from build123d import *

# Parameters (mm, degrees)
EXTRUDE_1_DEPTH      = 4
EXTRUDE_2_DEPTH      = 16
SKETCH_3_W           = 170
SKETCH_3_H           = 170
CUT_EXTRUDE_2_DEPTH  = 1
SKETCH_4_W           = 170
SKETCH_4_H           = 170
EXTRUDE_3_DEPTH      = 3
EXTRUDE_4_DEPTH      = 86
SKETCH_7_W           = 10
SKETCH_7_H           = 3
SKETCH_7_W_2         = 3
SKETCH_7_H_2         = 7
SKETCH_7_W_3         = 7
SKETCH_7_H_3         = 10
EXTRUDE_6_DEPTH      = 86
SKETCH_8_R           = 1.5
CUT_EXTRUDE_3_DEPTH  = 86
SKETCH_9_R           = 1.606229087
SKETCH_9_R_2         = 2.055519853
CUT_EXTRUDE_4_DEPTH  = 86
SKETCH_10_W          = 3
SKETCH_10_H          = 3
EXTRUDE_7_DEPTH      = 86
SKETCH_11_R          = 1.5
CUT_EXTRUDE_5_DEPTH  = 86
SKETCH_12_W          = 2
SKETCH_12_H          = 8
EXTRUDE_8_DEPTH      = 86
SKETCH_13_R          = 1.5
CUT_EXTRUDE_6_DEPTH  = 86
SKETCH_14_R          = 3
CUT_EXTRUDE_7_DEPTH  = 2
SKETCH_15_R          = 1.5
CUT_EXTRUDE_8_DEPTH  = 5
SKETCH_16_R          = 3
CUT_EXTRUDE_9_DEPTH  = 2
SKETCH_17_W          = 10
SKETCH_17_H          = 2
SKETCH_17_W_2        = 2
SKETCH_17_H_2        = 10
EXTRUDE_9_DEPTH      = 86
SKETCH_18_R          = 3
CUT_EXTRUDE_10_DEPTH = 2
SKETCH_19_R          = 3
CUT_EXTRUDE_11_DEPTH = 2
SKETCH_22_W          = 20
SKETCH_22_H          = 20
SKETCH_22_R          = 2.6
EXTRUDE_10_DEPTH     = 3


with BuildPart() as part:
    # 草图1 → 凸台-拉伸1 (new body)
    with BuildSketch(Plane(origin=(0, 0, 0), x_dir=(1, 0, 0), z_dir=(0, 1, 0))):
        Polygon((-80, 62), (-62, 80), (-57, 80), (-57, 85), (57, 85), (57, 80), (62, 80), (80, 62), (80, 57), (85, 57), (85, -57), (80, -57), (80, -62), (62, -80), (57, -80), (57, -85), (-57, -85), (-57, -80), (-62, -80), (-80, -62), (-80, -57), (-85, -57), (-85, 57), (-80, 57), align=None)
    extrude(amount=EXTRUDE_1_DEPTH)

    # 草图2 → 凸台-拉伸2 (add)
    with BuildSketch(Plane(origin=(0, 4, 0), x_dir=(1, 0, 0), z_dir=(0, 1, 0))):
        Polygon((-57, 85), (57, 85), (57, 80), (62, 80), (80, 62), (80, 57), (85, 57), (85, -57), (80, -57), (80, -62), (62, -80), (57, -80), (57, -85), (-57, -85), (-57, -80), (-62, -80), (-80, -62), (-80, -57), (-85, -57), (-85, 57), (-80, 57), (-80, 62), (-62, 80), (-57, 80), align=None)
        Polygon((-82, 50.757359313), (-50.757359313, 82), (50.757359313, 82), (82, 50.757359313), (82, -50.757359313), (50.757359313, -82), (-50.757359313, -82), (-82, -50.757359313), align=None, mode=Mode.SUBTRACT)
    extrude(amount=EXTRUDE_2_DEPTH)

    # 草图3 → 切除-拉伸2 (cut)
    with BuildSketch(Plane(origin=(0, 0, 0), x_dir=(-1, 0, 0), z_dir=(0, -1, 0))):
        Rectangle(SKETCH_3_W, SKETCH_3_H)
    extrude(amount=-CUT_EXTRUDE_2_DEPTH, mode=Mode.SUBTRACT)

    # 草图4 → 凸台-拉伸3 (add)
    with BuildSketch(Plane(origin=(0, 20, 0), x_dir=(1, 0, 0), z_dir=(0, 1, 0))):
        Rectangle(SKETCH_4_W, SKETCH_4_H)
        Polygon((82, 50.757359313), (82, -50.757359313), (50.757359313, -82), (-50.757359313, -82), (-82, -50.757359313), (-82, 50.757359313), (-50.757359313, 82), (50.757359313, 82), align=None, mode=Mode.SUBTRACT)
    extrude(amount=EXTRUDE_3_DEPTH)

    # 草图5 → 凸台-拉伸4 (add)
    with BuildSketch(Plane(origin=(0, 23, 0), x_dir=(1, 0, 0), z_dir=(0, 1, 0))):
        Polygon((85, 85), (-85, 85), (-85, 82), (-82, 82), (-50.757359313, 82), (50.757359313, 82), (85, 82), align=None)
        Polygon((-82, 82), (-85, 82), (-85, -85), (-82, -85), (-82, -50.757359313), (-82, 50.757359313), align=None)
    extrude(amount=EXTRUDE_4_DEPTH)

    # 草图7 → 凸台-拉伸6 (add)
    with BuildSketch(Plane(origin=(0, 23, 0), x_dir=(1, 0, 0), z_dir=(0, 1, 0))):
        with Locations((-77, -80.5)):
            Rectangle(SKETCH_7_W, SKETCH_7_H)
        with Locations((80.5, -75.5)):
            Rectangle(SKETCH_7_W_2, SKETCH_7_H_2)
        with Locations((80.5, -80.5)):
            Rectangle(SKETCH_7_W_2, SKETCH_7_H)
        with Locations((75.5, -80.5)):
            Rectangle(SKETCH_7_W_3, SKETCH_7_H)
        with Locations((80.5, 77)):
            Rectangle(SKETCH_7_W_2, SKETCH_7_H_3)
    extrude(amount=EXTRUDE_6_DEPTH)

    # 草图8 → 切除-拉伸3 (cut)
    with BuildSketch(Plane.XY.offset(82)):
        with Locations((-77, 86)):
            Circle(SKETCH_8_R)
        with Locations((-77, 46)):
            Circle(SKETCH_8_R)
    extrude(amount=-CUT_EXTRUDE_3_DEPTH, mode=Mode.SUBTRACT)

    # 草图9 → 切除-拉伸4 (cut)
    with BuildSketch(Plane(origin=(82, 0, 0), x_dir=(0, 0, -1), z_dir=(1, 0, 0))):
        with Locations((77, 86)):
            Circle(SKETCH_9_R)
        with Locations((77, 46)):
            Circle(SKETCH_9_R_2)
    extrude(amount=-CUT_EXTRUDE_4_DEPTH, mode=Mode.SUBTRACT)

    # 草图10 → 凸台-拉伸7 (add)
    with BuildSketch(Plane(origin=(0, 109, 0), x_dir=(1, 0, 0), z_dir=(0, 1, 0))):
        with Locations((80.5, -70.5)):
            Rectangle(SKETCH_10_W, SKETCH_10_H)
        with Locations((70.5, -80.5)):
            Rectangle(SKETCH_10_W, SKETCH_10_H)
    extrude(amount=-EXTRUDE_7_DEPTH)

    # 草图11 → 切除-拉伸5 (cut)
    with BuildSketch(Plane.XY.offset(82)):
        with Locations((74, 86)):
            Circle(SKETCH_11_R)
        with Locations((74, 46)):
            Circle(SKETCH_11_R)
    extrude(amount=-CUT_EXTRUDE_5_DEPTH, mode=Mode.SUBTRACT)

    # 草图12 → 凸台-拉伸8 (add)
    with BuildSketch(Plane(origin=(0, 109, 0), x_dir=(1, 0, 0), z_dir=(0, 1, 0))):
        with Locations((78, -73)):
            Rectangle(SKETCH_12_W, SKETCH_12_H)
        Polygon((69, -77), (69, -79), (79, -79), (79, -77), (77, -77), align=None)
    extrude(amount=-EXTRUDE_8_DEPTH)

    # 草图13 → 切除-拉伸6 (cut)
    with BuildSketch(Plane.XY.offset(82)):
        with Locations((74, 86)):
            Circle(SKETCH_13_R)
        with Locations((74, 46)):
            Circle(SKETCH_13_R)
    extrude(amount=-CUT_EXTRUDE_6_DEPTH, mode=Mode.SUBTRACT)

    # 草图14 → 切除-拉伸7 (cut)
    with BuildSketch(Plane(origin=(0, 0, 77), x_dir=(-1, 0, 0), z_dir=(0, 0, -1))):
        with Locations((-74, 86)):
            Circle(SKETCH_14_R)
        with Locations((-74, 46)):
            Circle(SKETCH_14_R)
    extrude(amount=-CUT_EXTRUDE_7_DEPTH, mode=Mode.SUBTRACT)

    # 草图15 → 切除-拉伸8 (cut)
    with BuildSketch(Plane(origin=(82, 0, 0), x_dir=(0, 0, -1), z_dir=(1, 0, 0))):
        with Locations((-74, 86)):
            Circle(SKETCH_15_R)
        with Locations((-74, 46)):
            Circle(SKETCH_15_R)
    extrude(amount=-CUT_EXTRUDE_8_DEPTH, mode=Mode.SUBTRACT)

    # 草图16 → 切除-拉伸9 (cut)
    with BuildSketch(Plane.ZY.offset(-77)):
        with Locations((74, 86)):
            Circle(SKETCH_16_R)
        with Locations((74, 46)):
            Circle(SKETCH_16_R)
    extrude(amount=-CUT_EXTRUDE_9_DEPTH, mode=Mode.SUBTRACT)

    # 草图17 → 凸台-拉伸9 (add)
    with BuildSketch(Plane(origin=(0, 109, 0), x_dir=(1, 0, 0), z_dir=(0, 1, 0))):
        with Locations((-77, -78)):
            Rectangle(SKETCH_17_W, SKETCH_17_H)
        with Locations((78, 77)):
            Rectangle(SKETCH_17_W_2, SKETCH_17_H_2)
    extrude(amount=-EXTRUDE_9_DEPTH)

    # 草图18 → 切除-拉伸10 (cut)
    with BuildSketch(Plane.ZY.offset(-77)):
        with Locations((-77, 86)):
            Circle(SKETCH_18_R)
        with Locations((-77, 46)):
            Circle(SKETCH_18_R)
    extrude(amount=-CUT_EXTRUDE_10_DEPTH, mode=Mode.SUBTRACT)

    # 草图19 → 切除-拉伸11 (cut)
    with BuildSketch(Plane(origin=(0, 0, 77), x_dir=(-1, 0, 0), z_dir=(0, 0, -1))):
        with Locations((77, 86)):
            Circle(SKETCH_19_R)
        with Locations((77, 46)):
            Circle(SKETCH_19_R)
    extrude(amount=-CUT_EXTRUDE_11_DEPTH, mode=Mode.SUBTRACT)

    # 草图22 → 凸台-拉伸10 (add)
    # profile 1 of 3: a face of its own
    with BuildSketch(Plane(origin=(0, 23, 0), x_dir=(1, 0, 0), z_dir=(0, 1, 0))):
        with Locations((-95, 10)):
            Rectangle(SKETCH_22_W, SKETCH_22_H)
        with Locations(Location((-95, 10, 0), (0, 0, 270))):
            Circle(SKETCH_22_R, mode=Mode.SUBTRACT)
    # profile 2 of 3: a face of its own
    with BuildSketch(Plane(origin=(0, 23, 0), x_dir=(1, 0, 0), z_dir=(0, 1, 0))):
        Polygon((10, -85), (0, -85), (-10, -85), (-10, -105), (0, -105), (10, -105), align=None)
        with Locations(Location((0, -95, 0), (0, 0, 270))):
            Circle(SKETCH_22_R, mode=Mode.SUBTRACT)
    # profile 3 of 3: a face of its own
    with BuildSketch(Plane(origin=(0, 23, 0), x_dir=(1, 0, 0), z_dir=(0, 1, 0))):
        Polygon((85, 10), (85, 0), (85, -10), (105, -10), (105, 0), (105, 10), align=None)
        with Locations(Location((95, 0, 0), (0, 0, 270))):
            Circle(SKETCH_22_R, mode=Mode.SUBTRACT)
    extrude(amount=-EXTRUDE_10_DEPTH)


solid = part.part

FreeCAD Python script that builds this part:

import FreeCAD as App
import Part
import Sketcher
Q = App.Units.Quantity

doc = App.newDocument("Part")
body = doc.addObject("PartDesign::Body", "Body")

# Sketch on XZ plane
sketch1 = body.newObject("Sketcher::SketchObject", "Sketch")
sketch1.AttachmentSupport = (doc.getObject("XZ_Plane"), [""])
sketch1.MapMode = "FlatFace"
sketch1.addGeometry([
    Part.LineSegment(App.Vector(-62, -80, 0), App.Vector(-80, -62, 0)),  # 0
    Part.LineSegment(App.Vector(-80, -62, 0), App.Vector(-80, -57, 0)),  # 1
    Part.LineSegment(App.Vector(-80, -57, 0), App.Vector(-85, -57, 0)),  # 2
    Part.LineSegment(App.Vector(-85, -57, 0), App.Vector(-85, 57, 0)),  # 3
    Part.LineSegment(App.Vector(-85, 57, 0), App.Vector(-80, 57, 0)),  # 4
    Part.LineSegment(App.Vector(-80, 57, 0), App.Vector(-80, 62, 0)),  # 5
    Part.LineSegment(App.Vector(-80, 62, 0), App.Vector(-62, 80, 0)),  # 6
    Part.LineSegment(App.Vector(-62, 80, 0), App.Vector(-57, 80, 0)),  # 7
    Part.LineSegment(App.Vector(-57, 80, 0), App.Vector(-57, 85, 0)),  # 8
    Part.LineSegment(App.Vector(-57, 85, 0), App.Vector(57, 85, 0)),  # 9
    Part.LineSegment(App.Vector(57, 85, 0), App.Vector(57, 80, 0)),  # 10
    Part.LineSegment(App.Vector(57, 80, 0), App.Vector(62, 80, 0)),  # 11
    Part.LineSegment(App.Vector(62, 80, 0), App.Vector(80, 62, 0)),  # 12
    Part.LineSegment(App.Vector(80, 62, 0), App.Vector(80, 57, 0)),  # 13
    Part.LineSegment(App.Vector(80, 57, 0), App.Vector(85, 57, 0)),  # 14
    Part.LineSegment(App.Vector(85, 57, 0), App.Vector(85, -57, 0)),  # 15
    Part.LineSegment(App.Vector(85, -57, 0), App.Vector(80, -57, 0)),  # 16
    Part.LineSegment(App.Vector(80, -57, 0), App.Vector(80, -62, 0)),  # 17
    Part.LineSegment(App.Vector(80, -62, 0), App.Vector(62, -80, 0)),  # 18
    Part.LineSegment(App.Vector(62, -80, 0), App.Vector(57, -80, 0)),  # 19
    Part.LineSegment(App.Vector(57, -80, 0), App.Vector(57, -85, 0)),  # 20
    Part.LineSegment(App.Vector(57, -85, 0), App.Vector(-57, -85, 0)),  # 21
    Part.LineSegment(App.Vector(-57, -85, 0), App.Vector(-57, -80, 0)),  # 22
    Part.LineSegment(App.Vector(-57, -80, 0), App.Vector(-62, -80, 0)),  # 23
], False)
sketch1.addConstraint([
    Sketcher.Constraint("Coincident", 0, 2, 1, 1),
    Sketcher.Constraint("Coincident", 1, 2, 2, 1),
    Sketcher.Constraint("Coincident", 2, 2, 3, 1),
    Sketcher.Constraint("Coincident", 3, 2, 4, 1),
    Sketcher.Constraint("Coincident", 4, 2, 5, 1),
    Sketcher.Constraint("Coincident", 5, 2, 6, 1),
    Sketcher.Constraint("Coincident", 6, 2, 7, 1),
    Sketcher.Constraint("Coincident", 7, 2, 8, 1),
    Sketcher.Constraint("Coincident", 8, 2, 9, 1),
    Sketcher.Constraint("Coincident", 9, 2, 10, 1),
    Sketcher.Constraint("Coincident", 10, 2, 11, 1),
    Sketcher.Constraint("Coincident", 11, 2, 12, 1),
    Sketcher.Constraint("Coincident", 12, 2, 13, 1),
    Sketcher.Constraint("Coincident", 13, 2, 14, 1),
    Sketcher.Constraint("Coincident", 14, 2, 15, 1),
    Sketcher.Constraint("Coincident", 15, 2, 16, 1),
    Sketcher.Constraint("Coincident", 16, 2, 17, 1),
    Sketcher.Constraint("Coincident", 17, 2, 18, 1),
    Sketcher.Constraint("Coincident", 18, 2, 19, 1),
    Sketcher.Constraint("Coincident", 19, 2, 20, 1),
    Sketcher.Constraint("Coincident", 20, 2, 21, 1),
    Sketcher.Constraint("Coincident", 21, 2, 22, 1),
    Sketcher.Constraint("Coincident", 22, 2, 23, 1),
    Sketcher.Constraint("Coincident", 23, 2, 0, 1),
    Sketcher.Constraint("Vertical", 1),
    Sketcher.Constraint("Horizontal", 2),
    Sketcher.Constraint("Vertical", 3),
    Sketcher.Constraint("Horizontal", 4),
    Sketcher.Constraint("Vertical", 5),
    Sketcher.Constraint("Horizontal", 7),
    Sketcher.Constraint("Vertical", 8),
    Sketcher.Constraint("Horizontal", 9),
    Sketcher.Constraint("Vertical", 10),
    Sketcher.Constraint("Horizontal", 11),
    Sketcher.Constraint("Vertical", 13),
    Sketcher.Constraint("Horizontal", 14),
    Sketcher.Constraint("Vertical", 15),
    Sketcher.Constraint("Horizontal", 16),
    Sketcher.Constraint("Vertical", 17),
    Sketcher.Constraint("Horizontal", 19),
    Sketcher.Constraint("Vertical", 20),
    Sketcher.Constraint("Horizontal", 21),
    Sketcher.Constraint("Vertical", 22),
    Sketcher.Constraint("Horizontal", 23),
    Sketcher.Constraint("Symmetric", 0, 2, 12, 2, -1, 1),
    Sketcher.Constraint("Symmetric", 2, 2, 14, 2, -1, 1),
    Sketcher.Constraint("Symmetric", 4, 2, 16, 2, -1, 1),
    Sketcher.Constraint("Symmetric", 6, 2, 18, 2, -1, 1),
    Sketcher.Constraint("Symmetric", 8, 2, 20, 2, -1, 1),
    Sketcher.Constraint("Symmetric", 10, 2, 22, 2, -1, 1),
    Sketcher.Constraint("Symmetric", 7, 2, 10, 2, -2),
    Sketcher.Constraint("Symmetric", 5, 2, 12, 2, -2),
    Sketcher.Constraint("Perpendicular", 0, 6),
    Sketcher.Constraint("Perpendicular", 6, 12),
    Sketcher.Constraint("Perpendicular", 12, 18),
    Sketcher.Constraint("Horizontal", 4, 2, 13, 2),
    Sketcher.Constraint("Vertical", 11, 2, 18, 2),
    Sketcher.Constraint("Equal", 4, 7),
    Sketcher.Constraint("Equal", 23, 1),
    Sketcher.Constraint("Equal", 21, 3),
    Sketcher.Constraint("Equal", 5, 8),
    Sketcher.Constraint("DistanceX", 2, 2, 2, 1, Q("5 mm")),
    Sketcher.Constraint("DistanceX", 9, 1, 9, 2, Q("114 mm")),
    Sketcher.Constraint("DistanceX", 0, 2, -1, 1, Q("80 mm")),
])
pad1 = body.newObject("PartDesign::Pad", "Pad")
pad1.Profile = sketch1
pad1.Length = 4
pad1.Reversed = True

# Sketch on XZ plane
sketch2 = body.newObject("Sketcher::SketchObject", "Sketch001")
sketch2.AttachmentSupport = (doc.getObject("XZ_Plane"), [""])
sketch2.MapMode = "FlatFace"
sketch2.AttachmentOffset = App.Placement(App.Vector(0, 0, -4), App.Rotation())
sketch2.addGeometry([
    Part.LineSegment(App.Vector(57, -85, 0), App.Vector(-57, -85, 0)),  # 0
    Part.LineSegment(App.Vector(-57, -85, 0), App.Vector(-57, -80, 0)),  # 1
    Part.LineSegment(App.Vector(-57, -80, 0), App.Vector(-62, -80, 0)),  # 2
    Part.LineSegment(App.Vector(-62, -80, 0), App.Vector(-80, -62, 0)),  # 3
    Part.LineSegment(App.Vector(-80, -62, 0), App.Vector(-80, -57, 0)),  # 4
    Part.LineSegment(App.Vector(-80, -57, 0), App.Vector(-85, -57, 0)),  # 5
    Part.LineSegment(App.Vector(-85, -57, 0), App.Vector(-85, 57, 0)),  # 6
    Part.LineSegment(App.Vector(-85, 57, 0), App.Vector(-80, 57, 0)),  # 7
    Part.LineSegment(App.Vector(-80, 57, 0), App.Vector(-80, 62, 0)),  # 8
    Part.LineSegment(App.Vector(-80, 62, 0), App.Vector(-62, 80, 0)),  # 9
    Part.LineSegment(App.Vector(-62, 80, 0), App.Vector(-57, 80, 0)),  # 10
    Part.LineSegment(App.Vector(-57, 80, 0), App.Vector(-57, 85, 0)),  # 11
    Part.LineSegment(App.Vector(-57, 85, 0), App.Vector(57, 85, 0)),  # 12
    Part.LineSegment(App.Vector(57, 85, 0), App.Vector(57, 80, 0)),  # 13
    Part.LineSegment(App.Vector(57, 80, 0), App.Vector(62, 80, 0)),  # 14
    Part.LineSegment(App.Vector(62, 80, 0), App.Vector(80, 62, 0)),  # 15
    Part.LineSegment(App.Vector(80, 62, 0), App.Vector(80, 57, 0)),  # 16
    Part.LineSegment(App.Vector(80, 57, 0), App.Vector(85, 57, 0)),  # 17
    Part.LineSegment(App.Vector(85, 57, 0), App.Vector(85, -57, 0)),  # 18
    Part.LineSegment(App.Vector(85, -57, 0), App.Vector(80, -57, 0)),  # 19
    Part.LineSegment(App.Vector(80, -57, 0), App.Vector(80, -62, 0)),  # 20
    Part.LineSegment(App.Vector(80, -62, 0), App.Vector(62, -80, 0)),  # 21
    Part.LineSegment(App.Vector(62, -80, 0), App.Vector(57, -80, 0)),  # 22
    Part.LineSegment(App.Vector(57, -80, 0), App.Vector(57, -85, 0)),  # 23
    Part.LineSegment(App.Vector(-82, -50.757359, 0), App.Vector(-50.757359, -82, 0)),  # 24
    Part.LineSegment(App.Vector(-50.757359, -82, 0), App.Vector(50.757359, -82, 0)),  # 25
    Part.LineSegment(App.Vector(50.757359, -82, 0), App.Vector(82, -50.757359, 0)),  # 26
    Part.LineSegment(App.Vector(82, -50.757359, 0), App.Vector(82, 50.757359, 0)),  # 27
    Part.LineSegment(App.Vector(82, 50.757359, 0), App.Vector(50.757359, 82, 0)),  # 28
    Part.LineSegment(App.Vector(50.757359, 82, 0), App.Vector(-50.757359, 82, 0)),  # 29
    Part.LineSegment(App.Vector(-50.757359, 82, 0), App.Vector(-82, 50.757359, 0)),  # 30
    Part.LineSegment(App.Vector(-82, 50.757359, 0), App.Vector(-82, -50.757359, 0)),  # 31
], False)
sketch2.addConstraint([
    Sketcher.Constraint("Coincident", 0, 2, 1, 1),
    Sketcher.Constraint("Coincident", 1, 2, 2, 1),
    Sketcher.Constraint("Coincident", 2, 2, 3, 1),
    Sketcher.Constraint("Coincident", 3, 2, 4, 1),
    Sketcher.Constraint("Coincident", 4, 2, 5, 1),
    Sketcher.Constraint("Coincident", 5, 2, 6, 1),
    Sketcher.Constraint("Coincident", 6, 2, 7, 1),
    Sketcher.Constraint("Coincident", 7, 2, 8, 1),
    Sketcher.Constraint("Coincident", 8, 2, 9, 1),
    Sketcher.Constraint("Coincident", 9, 2, 10, 1),
    Sketcher.Constraint("Coincident", 10, 2, 11, 1),
    Sketcher.Constraint("Coincident", 11, 2, 12, 1),
    Sketcher.Constraint("Coincident", 12, 2, 13, 1),
    Sketcher.Constraint("Coincident", 13, 2, 14, 1),
    Sketcher.Constraint("Coincident", 14, 2, 15, 1),
    Sketcher.Constraint("Coincident", 15, 2, 16, 1),
    Sketcher.Constraint("Coincident", 16, 2, 17, 1),
    Sketcher.Constraint("Coincident", 17, 2, 18, 1),
    Sketcher.Constraint("Coincident", 18, 2, 19, 1),
    Sketcher.Constraint("Coincident", 19, 2, 20, 1),
    Sketcher.Constraint("Coincident", 20, 2, 21, 1),
    Sketcher.Constraint("Coincident", 21, 2, 22, 1),
    Sketcher.Constraint("Coincident", 22, 2, 23, 1),
    Sketcher.Constraint("Coincident", 23, 2, 0, 1),
    Sketcher.Constraint("Coincident", 24, 2, 25, 1),
    Sketcher.Constraint("Coincident", 25, 2, 26, 1),
    Sketcher.Constraint("Coincident", 26, 2, 27, 1),
    Sketcher.Constraint("Coincident", 27, 2, 28, 1),
    Sketcher.Constraint("Coincident", 28, 2, 29, 1),
    Sketcher.Constraint("Coincident", 29, 2, 30, 1),
    Sketcher.Constraint("Coincident", 30, 2, 31, 1),
    Sketcher.Constraint("Coincident", 31, 2, 24, 1),
    Sketcher.Constraint("Horizontal", 0),
    Sketcher.Constraint("Vertical", 1),
    Sketcher.Constraint("Horizontal", 2),
    Sketcher.Constraint("Vertical", 4),
    Sketcher.Constraint("Horizontal", 5),
    Sketcher.Constraint("Vertical", 6),
    Sketcher.Constraint("Horizontal", 7),
    Sketcher.Constraint("Vertical", 8),
    Sketcher.Constraint("Horizontal", 10),
    Sketcher.Constraint("Vertical", 11),
    Sketcher.Constraint("Horizontal", 12),
    Sketcher.Constraint("Vertical", 13),
    Sketcher.Constraint("Horizontal", 14),
    Sketcher.Constraint("Vertical", 16),
    Sketcher.Constraint("Horizontal", 17),
    Sketcher.Constraint("Vertical", 18),
    Sketcher.Constraint("Horizontal", 19),
    Sketcher.Constraint("Vertical", 20),
    Sketcher.Constraint("Horizontal", 22),
    Sketcher.Constraint("Vertical", 23),
    Sketcher.Constraint("Horizontal", 25),
    Sketcher.Constraint("Vertical", 27),
    Sketcher.Constraint("Horizontal", 29),
    Sketcher.Constraint("Vertical", 31),
    Sketcher.Constraint("Symmetric", 0, 2, 12, 2, -1, 1),
    Sketcher.Constraint("Symmetric", 2, 2, 14, 2, -1, 1),
    Sketcher.Constraint("Symmetric", 3, 2, 15, 2, -1, 1),
    Sketcher.Constraint("Symmetric", 5, 2, 17, 2, -1, 1),
    Sketcher.Constraint("Symmetric", 7, 2, 19, 2, -1, 1),
    Sketcher.Constraint("Symmetric", 9, 2, 21, 2, -1, 1),
    Sketcher.Constraint("Symmetric", 24, 2, 28, 2, -1, 1),
    Sketcher.Constraint("Symmetric", 26, 2, 30, 2, -1, 1),
    Sketcher.Constraint("Symmetric", 10, 2, 13, 2, -2),
    Sketcher.Constraint("Symmetric", 8, 2, 15, 2, -2),
    Sketcher.Constraint("Perpendicular", 3, 9),
    Sketcher.Constraint("Perpendicular", 15, 21),
    Sketcher.Constraint("Perpendicular", 21, 24),
    Sketcher.Constraint("Perpendicular", 24, 26),
    Sketcher.Constraint("Perpendicular", 26, 28),
    Sketcher.Constraint("Perpendicular", 28, 30),
    Sketcher.Constraint("Horizontal", 7, 2, 16, 2),
    Sketcher.Constraint("Horizontal", 27, 2, 30, 2),
    Sketcher.Constraint("Vertical", 2, 2, 9, 2),
    Sketcher.Constraint("Vertical", 13, 2, 22, 2),
    Sketcher.Constraint("Equal", 2, 5),
    Sketcher.Constraint("Equal", 22, 1),
    Sketcher.Constraint("Equal", 1, 4),
    Sketcher.Constraint("Equal", 12, 6),
    Sketcher.Constraint("Equal", 29, 27),
    Sketcher.Constraint("DistanceX", 0, 2, 0, 1, Q("114 mm")),
    Sketcher.Constraint("DistanceX", 2, 2, 2, 1, Q("5 mm")),
    Sketcher.Constraint("DistanceY", 0, 2, -1, 1, Q("85 mm")),
    Sketcher.Constraint("DistanceY", 24, 2, -1, 1, Q("82 mm")),
    Sketcher.Constraint("DistanceX", 25, 1, 25, 2, Q("101.514719 mm")),
])
pad2 = body.newObject("PartDesign::Pad", "Pad001")
pad2.Profile = sketch2
pad2.Length = 16
pad2.Reversed = True

# Sketch on XZ plane
sketch3 = body.newObject("Sketcher::SketchObject", "Sketch002")
sketch3.AttachmentSupport = (doc.getObject("XZ_Plane"), [""])
sketch3.MapMode = "FlatFace"
sketch3.addGeometry([
    Part.LineSegment(App.Vector(85, -85, 0), App.Vector(85, 85, 0)),
    Part.LineSegment(App.Vector(85, 85, 0), App.Vector(-85, 85, 0)),
    Part.LineSegment(App.Vector(-85, 85, 0), App.Vector(-85, -85, 0)),
    Part.LineSegment(App.Vector(-85, -85, 0), App.Vector(85, -85, 0)),
], False)
sketch3.addConstraint([
    Sketcher.Constraint("Coincident", 0, 2, 1, 1),
    Sketcher.Constraint("Coincident", 1, 2, 2, 1),
    Sketcher.Constraint("Coincident", 2, 2, 3, 1),
    Sketcher.Constraint("Coincident", 3, 2, 0, 1),
    Sketcher.Constraint("Vertical", 0),
    Sketcher.Constraint("Horizontal", 1),
    Sketcher.Constraint("Vertical", 2),
    Sketcher.Constraint("Horizontal", 3),
    Sketcher.Constraint("Symmetric", 0, 2, 2, 2, -1, 1),
    Sketcher.Constraint("Equal", 3, 0),
    Sketcher.Constraint("DistanceX", 1, 2, 1, 1, Q("170 mm")),
])
pocket1 = body.newObject("PartDesign::Pocket", "Pocket")
pocket1.Profile = sketch3
pocket1.Length = 1

# Sketch on XZ plane
sketch4 = body.newObject("Sketcher::SketchObject", "Sketch003")
sketch4.AttachmentSupport = (doc.getObject("XZ_Plane"), [""])
sketch4.MapMode = "FlatFace"
sketch4.AttachmentOffset = App.Placement(App.Vector(0, 0, -20), App.Rotation())
sketch4.addGeometry([
    Part.LineSegment(App.Vector(-85, -85, 0), App.Vector(-85, 85, 0)),  # 0
    Part.LineSegment(App.Vector(-85, 85, 0), App.Vector(85, 85, 0)),  # 1
    Part.LineSegment(App.Vector(85, 85, 0), App.Vector(85, -85, 0)),  # 2
    Part.LineSegment(App.Vector(85, -85, 0), App.Vector(-85, -85, 0)),  # 3
    Part.LineSegment(App.Vector(50.757359, -82, 0), App.Vector(82, -50.757359, 0)),  # 4
    Part.LineSegment(App.Vector(82, -50.757359, 0), App.Vector(82, 50.757359, 0)),  # 5
    Part.LineSegment(App.Vector(82, 50.757359, 0), App.Vector(50.757359, 82, 0)),  # 6
    Part.LineSegment(App.Vector(50.757359, 82, 0), App.Vector(-50.757359, 82, 0)),  # 7
    Part.LineSegment(App.Vector(-50.757359, 82, 0), App.Vector(-82, 50.757359, 0)),  # 8
    Part.LineSegment(App.Vector(-82, 50.757359, 0), App.Vector(-82, -50.757359, 0)),  # 9
    Part.LineSegment(App.Vector(-82, -50.757359, 0), App.Vector(-50.757359, -82, 0)),  # 10
    Part.LineSegment(App.Vector(-50.757359, -82, 0), App.Vector(50.757359, -82, 0)),  # 11
], False)
sketch4.addConstraint([
    Sketcher.Constraint("Coincident", 0, 2, 1, 1),
    Sketcher.Constraint("Coincident", 1, 2, 2, 1),
    Sketcher.Constraint("Coincident", 2, 2, 3, 1),
    Sketcher.Constraint("Coincident", 3, 2, 0, 1),
    Sketcher.Constraint("Coincident", 4, 2, 5, 1),
    Sketcher.Constraint("Coincident", 5, 2, 6, 1),
    Sketcher.Constraint("Coincident", 6, 2, 7, 1),
    Sketcher.Constraint("Coincident", 7, 2, 8, 1),
    Sketcher.Constraint("Coincident", 8, 2, 9, 1),
    Sketcher.Constraint("Coincident", 9, 2, 10, 1),
    Sketcher.Constraint("Coincident", 10, 2, 11, 1),
    Sketcher.Constraint("Coincident", 11, 2, 4, 1),
    Sketcher.Constraint("Vertical", 0),
    Sketcher.Constraint("Horizontal", 1),
    Sketcher.Constraint("Vertical", 2),
    Sketcher.Constraint("Horizontal", 3),
    Sketcher.Constraint("Vertical", 5),
    Sketcher.Constraint("Horizontal", 7),
    Sketcher.Constraint("Vertical", 9),
    Sketcher.Constraint("Horizontal", 11),
    Sketcher.Constraint("Symmetric", 0, 2, 2, 2, -1, 1),
    Sketcher.Constraint("Symmetric", 4, 2, 8, 2, -1, 1),
    Sketcher.Constraint("Symmetric", 6, 2, 10, 2, -1, 1),
    Sketcher.Constraint("Perpendicular", 4, 6),
    Sketcher.Constraint("Perpendicular", 6, 8),
    Sketcher.Constraint("Perpendicular", 8, 10),
    Sketcher.Constraint("Horizontal", 5, 2, 8, 2),
    Sketcher.Constraint("Vertical", 7, 2, 10, 2),
    Sketcher.Constraint("Equal", 3, 0),
    Sketcher.Constraint("Equal", 11, 5),
    Sketcher.Constraint("DistanceX", 1, 1, 1, 2, Q("170 mm")),
    Sketcher.Constraint("DistanceX", -1, 1, 4, 2, Q("82 mm")),
    Sketcher.Constraint("DistanceX", 7, 2, 7, 1, Q("101.514719 mm")),
])
pad3 = body.newObject("PartDesign::Pad", "Pad002")
pad3.Profile = sketch4
pad3.Length = 3
pad3.Reversed = True

# Sketch on XZ plane
sketch5 = body.newObject("Sketcher::SketchObject", "Sketch004")
sketch5.AttachmentSupport = (doc.getObject("XZ_Plane"), [""])
sketch5.MapMode = "FlatFace"
sketch5.AttachmentOffset = App.Placement(App.Vector(0, 0, -23), App.Rotation())
sketch5.addGeometry([
    Part.LineSegment(App.Vector(85, -85, 0), App.Vector(-85, -85, 0)),  # 0
    Part.LineSegment(App.Vector(-85, -85, 0), App.Vector(-85, 85, 0)),  # 1
    Part.LineSegment(App.Vector(-85, 85, 0), App.Vector(-82, 85, 0)),  # 2
    Part.LineSegment(App.Vector(-82, 85, 0), App.Vector(-82, -82, 0)),  # 3
    Part.LineSegment(App.Vector(-82, -82, 0), App.Vector(85, -82, 0)),  # 4
    Part.LineSegment(App.Vector(85, -82, 0), App.Vector(85, -85, 0)),  # 5
], False)
sketch5.addConstraint([
    Sketcher.Constraint("Coincident", 0, 2, 1, 1),
    Sketcher.Constraint("Coincident", 1, 2, 2, 1),
    Sketcher.Constraint("Coincident", 2, 2, 3, 1),
    Sketcher.Constraint("Coincident", 3, 2, 4, 1),
    Sketcher.Constraint("Coincident", 4, 2, 5, 1),
    Sketcher.Constraint("Coincident", 5, 2, 0, 1),
    Sketcher.Constraint("Horizontal", 0),
    Sketcher.Constraint("Vertical", 1),
    Sketcher.Constraint("Horizontal", 2),
    Sketcher.Constraint("Vertical", 3),
    Sketcher.Constraint("Horizontal", 4),
    Sketcher.Constraint("Vertical", 5),
    Sketcher.Constraint("Symmetric", 1, 2, 5, 2, -1, 1),
    Sketcher.Constraint("Equal", 0, 1),
    Sketcher.Constraint("Equal", 4, 3),
    Sketcher.Constraint("DistanceX", 0, 2, 0, 1, Q("170 mm")),
    Sketcher.Constraint("DistanceX", 2, 1, 2, 2, Q("3 mm")),
])
pad4 = body.newObject("PartDesign::Pad", "Pad003")
pad4.Profile = sketch5
pad4.Length = 86
pad4.Reversed = True

# Sketch on XZ plane
sketch6 = body.newObject("Sketcher::SketchObject", "Sketch005")
sketch6.AttachmentSupport = (doc.getObject("XZ_Plane"), [""])
sketch6.MapMode = "FlatFace"
sketch6.AttachmentOffset = App.Placement(App.Vector(0, 0, -23), App.Rotation())
sketch6.addGeometry([
    Part.LineSegment(App.Vector(-82, 79, 0), App.Vector(-82, 82, 0)),  # 0
    Part.LineSegment(App.Vector(-82, 82, 0), App.Vector(-72, 82, 0)),  # 1
    Part.LineSegment(App.Vector(-72, 82, 0), App.Vector(-72, 79, 0)),  # 2
    Part.LineSegment(App.Vector(-72, 79, 0), App.Vector(-82, 79, 0)),  # 3
    Part.LineSegment(App.Vector(79, 72, 0), App.Vector(79, 79, 0)),  # 4
    Part.LineSegment(App.Vector(79, 79, 0), App.Vector(72, 79, 0)),  # 5
    Part.LineSegment(App.Vector(72, 79, 0), App.Vector(72, 82, 0)),  # 6
    Part.LineSegment(App.Vector(72, 82, 0), App.Vector(82, 82, 0)),  # 7
    Part.LineSegment(App.Vector(82, 82, 0), App.Vector(82, 72, 0)),  # 8
    Part.LineSegment(App.Vector(82, 72, 0), App.Vector(79, 72, 0)),  # 9
    Part.LineSegment(App.Vector(79, -82, 0), App.Vector(79, -72, 0)),  # 10
    Part.LineSegment(App.Vector(79, -72, 0), App.Vector(82, -72, 0)),  # 11
    Part.LineSegment(App.Vector(82, -72, 0), App.Vector(82, -82, 0)),  # 12
    Part.LineSegment(App.Vector(82, -82, 0), App.Vector(79, -82, 0)),  # 13
], False)
sketch6.addConstraint([
    Sketcher.Constraint("Coincident", 0, 2, 1, 1),
    Sketcher.Constraint("Coincident", 1, 2, 2, 1),
    Sketcher.Constraint("Coincident", 2, 2, 3, 1),
    Sketcher.Constraint("Coincident", 3, 2, 0, 1),
    Sketcher.Constraint("Coincident", 4, 2, 5, 1),
    Sketcher.Constraint("Coincident", 5, 2, 6, 1),
    Sketcher.Constraint("Coincident", 6, 2, 7, 1),
    Sketcher.Constraint("Coincident", 7, 2, 8, 1),
    Sketcher.Constraint("Coincident", 8, 2, 9, 1),
    Sketcher.Constraint("Coincident", 9, 2, 4, 1),
    Sketcher.Constraint("Coincident", 10, 2, 11, 1),
    Sketcher.Constraint("Coincident", 11, 2, 12, 1),
    Sketcher.Constraint("Coincident", 12, 2, 13, 1),
    Sketcher.Constraint("Coincident", 13, 2, 10, 1),
    Sketcher.Constraint("Vertical", 0),
    Sketcher.Constraint("Horizontal", 1),
    Sketcher.Constraint("Vertical", 2),
    Sketcher.Constraint("Horizontal", 3),
    Sketcher.Constraint("Vertical", 4),
    Sketcher.Constraint("Horizontal", 5),
    Sketcher.Constraint("Vertical", 6),
    Sketcher.Constraint("Horizontal", 7),
    Sketcher.Constraint("Vertical", 8),
    Sketcher.Constraint("Horizontal", 9),
    Sketcher.Constraint("Vertical", 10),
    Sketcher.Constraint("Horizontal", 11),
    Sketcher.Constraint("Vertical", 12),
    Sketcher.Constraint("Horizontal", 13),
    Sketcher.Constraint("Symmetric", 0, 2, 12, 2, -1, 1),
    Sketcher.Constraint("Symmetric", 2, 2, 5, 2, -2),
    Sketcher.Constraint("Symmetric", 0, 2, 7, 2, -2),
    Sketcher.Constraint("Symmetric", 9, 2, 10, 2, -1),
    Sketcher.Constraint("Equal", 13, 0),
    Sketcher.Constraint("Equal", 5, 4),
    Sketcher.Constraint("DistanceX", 1, 1, 1, 2, Q("10 mm")),
    Sketcher.Constraint("DistanceX", 5, 2, 5, 1, Q("7 mm")),
    Sketcher.Constraint("DistanceX", 0, 2, -1, 1, Q("82 mm")),
    Sketcher.Constraint("DistanceY", -1, 1, 0, 2, Q("82 mm")),
])
pad5 = body.newObject("PartDesign::Pad", "Pad004")
pad5.Profile = sketch6
pad5.Length = 86
pad5.Reversed = True

# Sketch on XY plane
sketch7 = body.newObject("Sketcher::SketchObject", "Sketch006")
sketch7.AttachmentSupport = (doc.getObject("XY_Plane"), [""])
sketch7.MapMode = "FlatFace"
sketch7.AttachmentOffset = App.Placement(App.Vector(0, 0, 82), App.Rotation())
sketch7.addGeometry([
    Part.Circle(App.Vector(-77, 86, 0), App.Vector(0, 0, 1), 1.5),
    Part.Circle(App.Vector(-77, 46, 0), App.Vector(0, 0, 1), 1.5),
], False)
sketch7.addConstraint([
    Sketcher.Constraint("Equal", 0, 1),
    Sketcher.Constraint("Vertical", 0, 3, 1, 3),
    Sketcher.Constraint("Diameter", 0, Q("3 mm")),
    Sketcher.Constraint("DistanceX", 0, 3, -1, 1, Q("77 mm")),
    Sketcher.Constraint("DistanceY", -1, 1, 0, 3, Q("86 mm")),
    Sketcher.Constraint("DistanceY", -1, 1, 1, 3, Q("46 mm")),
])
pocket2 = body.newObject("PartDesign::Pocket", "Pocket001")
pocket2.Profile = sketch7
pocket2.Length = 86

# Sketch on YZ plane
sketch8 = body.newObject("Sketcher::SketchObject", "Sketch007")
sketch8.AttachmentSupport = (doc.getObject("YZ_Plane"), [""])
sketch8.MapMode = "FlatFace"
sketch8.AttachmentOffset = App.Placement(App.Vector(0, 0, 82), App.Rotation())
sketch8.addGeometry([
    Part.Circle(App.Vector(86, -77, 0), App.Vector(0, 0, 1), 1.606229),
    Part.Circle(App.Vector(46, -77, 0), App.Vector(0, 0, 1), 2.05552),
], False)
sketch8.addConstraint([
    Sketcher.Constraint("Horizontal", 0, 3, 1, 3),
    Sketcher.Constraint("DistanceX", -1, 1, 0, 3, Q("86 mm")),
    Sketcher.Constraint("DistanceY", 0, 3, -1, 1, Q("77 mm")),
    Sketcher.Constraint("DistanceX", -1, 1, 1, 3, Q("46 mm")),
    Sketcher.Constraint("Diameter", 0, Q("3.212458 mm")),
    Sketcher.Constraint("Diameter", 1, Q("4.11104 mm")),
])
pocket3 = body.newObject("PartDesign::Pocket", "Pocket002")
pocket3.Profile = sketch8
pocket3.Length = 86

# Sketch on XZ plane
sketch9 = body.newObject("Sketcher::SketchObject", "Sketch008")
sketch9.AttachmentSupport = (doc.getObject("XZ_Plane"), [""])
sketch9.MapMode = "FlatFace"
sketch9.AttachmentOffset = App.Placement(App.Vector(0, 0, -109), App.Rotation())
sketch9.addGeometry([
    Part.LineSegment(App.Vector(79, 69, 0), App.Vector(79, 72, 0)),  # 0
    Part.LineSegment(App.Vector(79, 72, 0), App.Vector(82, 72, 0)),  # 1
    Part.LineSegment(App.Vector(82, 72, 0), App.Vector(82, 69, 0)),  # 2
    Part.LineSegment(App.Vector(82, 69, 0), App.Vector(79, 69, 0)),  # 3
    Part.LineSegment(App.Vector(69, 79, 0), App.Vector(69, 82, 0)),  # 4
    Part.LineSegment(App.Vector(69, 82, 0), App.Vector(72, 82, 0)),  # 5
    Part.LineSegment(App.Vector(72, 82, 0), App.Vector(72, 79, 0)),  # 6
    Part.LineSegment(App.Vector(72, 79, 0), App.Vector(69, 79, 0)),  # 7
], False)
sketch9.addConstraint([
    Sketcher.Constraint("Coincident", 0, 2, 1, 1),
    Sketcher.Constraint("Coincident", 1, 2, 2, 1),
    Sketcher.Constraint("Coincident", 2, 2, 3, 1),
    Sketcher.Constraint("Coincident", 3, 2, 0, 1),
    Sketcher.Constraint("Coincident", 4, 2, 5, 1),
    Sketcher.Constraint("Coincident", 5, 2, 6, 1),
    Sketcher.Constraint("Coincident", 6, 2, 7, 1),
    Sketcher.Constraint("Coincident", 7, 2, 4, 1),
    Sketcher.Constraint("Vertical", 0),
    Sketcher.Constraint("Horizontal", 1),
    Sketcher.Constraint("Vertical", 2),
    Sketcher.Constraint("Horizontal", 3),
    Sketcher.Constraint("Vertical", 4),
    Sketcher.Constraint("Horizontal", 5),
    Sketcher.Constraint("Vertical", 6),
    Sketcher.Constraint("Horizontal", 7),
    Sketcher.Constraint("Equal", 3, 5),
    Sketcher.Constraint("Equal", 7, 0),
    Sketcher.Constraint("Equal", 2, 4),
    Sketcher.Constraint("DistanceX", 1, 1, 1, 2, Q("3 mm")),
    Sketcher.Constraint("DistanceX", -1, 1, 0, 2, Q("79 mm")),
    Sketcher.Constraint("DistanceY", -1, 1, 0, 2, Q("72 mm")),
    Sketcher.Constraint("DistanceX", -1, 1, 4, 2, Q("69 mm")),
    Sketcher.Constraint("DistanceY", -1, 1, 4, 2, Q("82 mm")),
])
pad6 = body.newObject("PartDesign::Pad", "Pad005")
pad6.Profile = sketch9
pad6.Length = 86

# Sketch on XY plane
sketch10 = body.newObject("Sketcher::SketchObject", "Sketch009")
sketch10.AttachmentSupport = (doc.getObject("XY_Plane"), [""])
sketch10.MapMode = "FlatFace"
sketch10.AttachmentOffset = App.Placement(App.Vector(0, 0, 82), App.Rotation())
sketch10.addGeometry([
    Part.Circle(App.Vector(74, 86, 0), App.Vector(0, 0, 1), 1.5),
    Part.Circle(App.Vector(74, 46, 0), App.Vector(0, 0, 1), 1.5),
], False)
sketch10.addConstraint([
    Sketcher.Constraint("Equal", 0, 1),
    Sketcher.Constraint("Vertical", 0, 3, 1, 3),
    Sketcher.Constraint("Diameter", 0, Q("3 mm")),
    Sketcher.Constraint("DistanceX", -1, 1, 0, 3, Q("74 mm")),
    Sketcher.Constraint("DistanceY", -1, 1, 0, 3, Q("86 mm")),
    Sketcher.Constraint("DistanceY", -1, 1, 1, 3, Q("46 mm")),
])
pocket4 = body.newObject("PartDesign::Pocket", "Pocket003")
pocket4.Profile = sketch10
pocket4.Length = 86

# Sketch on XZ plane
sketch11 = body.newObject("Sketcher::SketchObject", "Sketch010")
sketch11.AttachmentSupport = (doc.getObject("XZ_Plane"), [""])
sketch11.MapMode = "FlatFace"
sketch11.AttachmentOffset = App.Placement(App.Vector(0, 0, -109), App.Rotation())
sketch11.addGeometry([
    Part.LineSegment(App.Vector(77, 69, 0), App.Vector(77, 77, 0)),  # 0
    Part.LineSegment(App.Vector(77, 77, 0), App.Vector(69, 77, 0)),  # 1
    Part.LineSegment(App.Vector(69, 77, 0), App.Vector(69, 79, 0)),  # 2
    Part.LineSegment(App.Vector(69, 79, 0), App.Vector(79, 79, 0)),  # 3
    Part.LineSegment(App.Vector(79, 79, 0), App.Vector(79, 69, 0)),  # 4
    Part.LineSegment(App.Vector(79, 69, 0), App.Vector(77, 69, 0)),  # 5
], False)
sketch11.addConstraint([
    Sketcher.Constraint("Coincident", 0, 2, 1, 1),
    Sketcher.Constraint("Coincident", 1, 2, 2, 1),
    Sketcher.Constraint("Coincident", 2, 2, 3, 1),
    Sketcher.Constraint("Coincident", 3, 2, 4, 1),
    Sketcher.Constraint("Coincident", 4, 2, 5, 1),
    Sketcher.Constraint("Coincident", 5, 2, 0, 1),
    Sketcher.Constraint("Vertical", 0),
    Sketcher.Constraint("Horizontal", 1),
    Sketcher.Constraint("Vertical", 2),
    Sketcher.Constraint("Horizontal", 3),
    Sketcher.Constraint("Vertical", 4),
    Sketcher.Constraint("Horizontal", 5),
    Sketcher.Constraint("Equal", 1, 0),
    Sketcher.Constraint("Equal", 5, 2),
    Sketcher.Constraint("DistanceX", 1, 2, 1, 1, Q("8 mm")),
    Sketcher.Constraint("DistanceX", 3, 1, 3, 2, Q("10 mm")),
    Sketcher.Constraint("DistanceX", -1, 1, 0, 2, Q("77 mm")),
    Sketcher.Constraint("DistanceY", -1, 1, 0, 2, Q("77 mm")),
])
pad7 = body.newObject("PartDesign::Pad", "Pad006")
pad7.Profile = sketch11
pad7.Length = 86

# Sketch on XY plane
sketch12 = body.newObject("Sketcher::SketchObject", "Sketch011")
sketch12.AttachmentSupport = (doc.getObject("XY_Plane"), [""])
sketch12.MapMode = "FlatFace"
sketch12.AttachmentOffset = App.Placement(App.Vector(0, 0, 82), App.Rotation())
sketch12.addGeometry([
    Part.Circle(App.Vector(74, 86, 0), App.Vector(0, 0, 1), 1.5),
    Part.Circle(App.Vector(74, 46, 0), App.Vector(0, 0, 1), 1.5),
], False)
sketch12.addConstraint([
    Sketcher.Constraint("Equal", 0, 1),
    Sketcher.Constraint("Vertical", 0, 3, 1, 3),
    Sketcher.Constraint("Diameter", 0, Q("3 mm")),
    Sketcher.Constraint("DistanceX", -1, 1, 0, 3, Q("74 mm")),
    Sketcher.Constraint("DistanceY", -1, 1, 0, 3, Q("86 mm")),
    Sketcher.Constraint("DistanceY", -1, 1, 1, 3, Q("46 mm")),
])
pocket5 = body.newObject("PartDesign::Pocket", "Pocket004")
pocket5.Profile = sketch12
pocket5.Length = 86

# Sketch on XY plane
sketch13 = body.newObject("Sketcher::SketchObject", "Sketch012")
sketch13.AttachmentSupport = (doc.getObject("XY_Plane"), [""])
sketch13.MapMode = "FlatFace"
sketch13.AttachmentOffset = App.Placement(App.Vector(0, 0, 77), App.Rotation())
sketch13.addGeometry([
    Part.Circle(App.Vector(74, 86, 0), App.Vector(0, 0, 1), 3),
    Part.Circle(App.Vector(74, 46, 0), App.Vector(0, 0, 1), 3),
], False)
sketch13.addConstraint([
    Sketcher.Constraint("Equal", 0, 1),
    Sketcher.Constraint("Vertical", 0, 3, 1, 3),
    Sketcher.Constraint("Diameter", 0, Q("6 mm")),
    Sketcher.Constraint("DistanceX", -1, 1, 0, 3, Q("74 mm")),
    Sketcher.Constraint("DistanceY", -1, 1, 0, 3, Q("86 mm")),
    Sketcher.Constraint("DistanceY", -1, 1, 1, 3, Q("46 mm")),
])
pocket6 = body.newObject("PartDesign::Pocket", "Pocket005")
pocket6.Profile = sketch13
pocket6.Length = 2
pocket6.Reversed = True

# Sketch on YZ plane
sketch14 = body.newObject("Sketcher::SketchObject", "Sketch013")
sketch14.AttachmentSupport = (doc.getObject("YZ_Plane"), [""])
sketch14.MapMode = "FlatFace"
sketch14.AttachmentOffset = App.Placement(App.Vector(0, 0, 82), App.Rotation())
sketch14.addGeometry([
    Part.Circle(App.Vector(86, 74, 0), App.Vector(0, 0, 1), 1.5),
    Part.Circle(App.Vector(46, 74, 0), App.Vector(0, 0, 1), 1.5),
], False)
sketch14.addConstraint([
    Sketcher.Constraint("Equal", 0, 1),
    Sketcher.Constraint("Horizontal", 0, 3, 1, 3),
    Sketcher.Constraint("Diameter", 0, Q("3 mm")),
    Sketcher.Constraint("DistanceX", -1, 1, 0, 3, Q("86 mm")),
    Sketcher.Constraint("DistanceY", -1, 1, 0, 3, Q("74 mm")),
    Sketcher.Constraint("DistanceX", -1, 1, 1, 3, Q("46 mm")),
])
pocket7 = body.newObject("PartDesign::Pocket", "Pocket006")
pocket7.Profile = sketch14
pocket7.Length = 5

# Sketch on YZ plane
sketch15 = body.newObject("Sketcher::SketchObject", "Sketch014")
sketch15.AttachmentSupport = (doc.getObject("YZ_Plane"), [""])
sketch15.MapMode = "FlatFace"
sketch15.AttachmentOffset = App.Placement(App.Vector(0, 0, 77), App.Rotation())
sketch15.addGeometry([
    Part.Circle(App.Vector(86, 74, 0), App.Vector(0, 0, 1), 3),
    Part.Circle(App.Vector(46, 74, 0), App.Vector(0, 0, 1), 3),
], False)
sketch15.addConstraint([
    Sketcher.Constraint("Equal", 0, 1),
    Sketcher.Constraint("Horizontal", 0, 3, 1, 3),
    Sketcher.Constraint("Diameter", 0, Q("6 mm")),
    Sketcher.Constraint("DistanceX", -1, 1, 0, 3, Q("86 mm")),
    Sketcher.Constraint("DistanceY", -1, 1, 0, 3, Q("74 mm")),
    Sketcher.Constraint("DistanceX", -1, 1, 1, 3, Q("46 mm")),
])
pocket8 = body.newObject("PartDesign::Pocket", "Pocket007")
pocket8.Profile = sketch15
pocket8.Length = 2
pocket8.Reversed = True

# Sketch on XZ plane
sketch16 = body.newObject("Sketcher::SketchObject", "Sketch015")
sketch16.AttachmentSupport = (doc.getObject("XZ_Plane"), [""])
sketch16.MapMode = "FlatFace"
sketch16.AttachmentOffset = App.Placement(App.Vector(0, 0, -109), App.Rotation())
sketch16.addGeometry([
    Part.LineSegment(App.Vector(-82, 77, 0), App.Vector(-82, 79, 0)),  # 0
    Part.LineSegment(App.Vector(-82, 79, 0), App.Vector(-72, 79, 0)),  # 1
    Part.LineSegment(App.Vector(-72, 79, 0), App.Vector(-72, 77, 0)),  # 2
    Part.LineSegment(App.Vector(-72, 77, 0), App.Vector(-82, 77, 0)),  # 3
    Part.LineSegment(App.Vector(77, -82, 0), App.Vector(77, -72, 0)),  # 4
    Part.LineSegment(App.Vector(77, -72, 0), App.Vector(79, -72, 0)),  # 5
    Part.LineSegment(App.Vector(79, -72, 0), App.Vector(79, -82, 0)),  # 6
    Part.LineSegment(App.Vector(79, -82, 0), App.Vector(77, -82, 0)),  # 7
], False)
sketch16.addConstraint([
    Sketcher.Constraint("Coincident", 0, 2, 1, 1),
    Sketcher.Constraint("Coincident", 1, 2, 2, 1),
    Sketcher.Constraint("Coincident", 2, 2, 3, 1),
    Sketcher.Constraint("Coincident", 3, 2, 0, 1),
    Sketcher.Constraint("Coincident", 4, 2, 5, 1),
    Sketcher.Constraint("Coincident", 5, 2, 6, 1),
    Sketcher.Constraint("Coincident", 6, 2, 7, 1),
    Sketcher.Constraint("Coincident", 7, 2, 4, 1),
    Sketcher.Constraint("Vertical", 0),
    Sketcher.Constraint("Horizontal", 1),
    Sketcher.Constraint("Vertical", 2),
    Sketcher.Constraint("Horizontal", 3),
    Sketcher.Constraint("Vertical", 4),
    Sketcher.Constraint("Horizontal", 5),
    Sketcher.Constraint("Vertical", 6),
    Sketcher.Constraint("Horizontal", 7),
    Sketcher.Constraint("Equal", 7, 0),
    Sketcher.Constraint("Equal", 3, 4),
    Sketcher.Constraint("DistanceX", 1, 1, 1, 2, Q("10 mm")),
    Sketcher.Constraint("DistanceX", 5, 1, 5, 2, Q("2 mm")),
    Sketcher.Constraint("DistanceX", 0, 2, -1, 1, Q("82 mm")),
    Sketcher.Constraint("DistanceY", -1, 1, 0, 2, Q("79 mm")),
    Sketcher.Constraint("DistanceX", -1, 1, 4, 2, Q("77 mm")),
    Sketcher.Constraint("DistanceY", 4, 2, -1, 1, Q("72 mm")),
])
pad8 = body.newObject("PartDesign::Pad", "Pad007")
pad8.Profile = sketch16
pad8.Length = 86

# Sketch on YZ plane
sketch17 = body.newObject("Sketcher::SketchObject", "Sketch016")
sketch17.AttachmentSupport = (doc.getObject("YZ_Plane"), [""])
sketch17.MapMode = "FlatFace"
sketch17.AttachmentOffset = App.Placement(App.Vector(0, 0, 77), App.Rotation())
sketch17.addGeometry([
    Part.Circle(App.Vector(86, -77, 0), App.Vector(0, 0, 1), 3),
    Part.Circle(App.Vector(46, -77, 0), App.Vector(0, 0, 1), 3),
], False)
sketch17.addConstraint([
    Sketcher.Constraint("Equal", 0, 1),
    Sketcher.Constraint("Horizontal", 0, 3, 1, 3),
    Sketcher.Constraint("Diameter", 0, Q("6 mm")),
    Sketcher.Constraint("DistanceX", -1, 1, 0, 3, Q("86 mm")),
    Sketcher.Constraint("DistanceY", 0, 3, -1, 1, Q("77 mm")),
    Sketcher.Constraint("DistanceX", -1, 1, 1, 3, Q("46 mm")),
])
pocket9 = body.newObject("PartDesign::Pocket", "Pocket008")
pocket9.Profile = sketch17
pocket9.Length = 2
pocket9.Reversed = True

# Sketch on XY plane
sketch18 = body.newObject("Sketcher::SketchObject", "Sketch017")
sketch18.AttachmentSupport = (doc.getObject("XY_Plane"), [""])
sketch18.MapMode = "FlatFace"
sketch18.AttachmentOffset = App.Placement(App.Vector(0, 0, 77), App.Rotation())
sketch18.addGeometry([
    Part.Circle(App.Vector(-77, 86, 0), App.Vector(0, 0, 1), 3),
    Part.Circle(App.Vector(-77, 46, 0), App.Vector(0, 0, 1), 3),
], False)
sketch18.addConstraint([
    Sketcher.Constraint("Equal", 0, 1),
    Sketcher.Constraint("Vertical", 0, 3, 1, 3),
    Sketcher.Constraint("Diameter", 0, Q("6 mm")),
    Sketcher.Constraint("DistanceX", 0, 3, -1, 1, Q("77 mm")),
    Sketcher.Constraint("DistanceY", -1, 1, 0, 3, Q("86 mm")),
    Sketcher.Constraint("DistanceY", -1, 1, 1, 3, Q("46 mm")),
])
pocket10 = body.newObject("PartDesign::Pocket", "Pocket009")
pocket10.Profile = sketch18
pocket10.Length = 2
pocket10.Reversed = True

# Sketch on XZ plane
sketch19 = body.newObject("Sketcher::SketchObject", "Sketch018")
sketch19.AttachmentSupport = (doc.getObject("XZ_Plane"), [""])
sketch19.MapMode = "FlatFace"
sketch19.AttachmentOffset = App.Placement(App.Vector(0, 0, -23), App.Rotation())
sketch19.addGeometry([
    Part.LineSegment(App.Vector(-105, -20, 0), App.Vector(-105, 0, 0)),  # 0
    Part.LineSegment(App.Vector(-105, 0, 0), App.Vector(-85, 0, 0)),  # 1
    Part.LineSegment(App.Vector(-85, 0, 0), App.Vector(-85, -20, 0)),  # 2
    Part.LineSegment(App.Vector(-85, -20, 0), App.Vector(-105, -20, 0)),  # 3
    Part.Circle(App.Vector(-95, -10, 0), App.Vector(0, 0, 1), 2.6),  # 4
    Part.LineSegment(App.Vector(10, 85, 0), App.Vector(-10, 85, 0)),  # 5
    Part.LineSegment(App.Vector(-10, 85, 0), App.Vector(-10, 105, 0)),  # 6
    Part.LineSegment(App.Vector(-10, 105, 0), App.Vector(10, 105, 0)),  # 7
    Part.LineSegment(App.Vector(10, 105, 0), App.Vector(10, 85, 0)),  # 8
    Part.Circle(App.Vector(0, 95, 0), App.Vector(0, 0, 1), 2.6),  # 9
    Part.LineSegment(App.Vector(85, -10, 0), App.Vector(85, 10, 0)),  # 10
    Part.LineSegment(App.Vector(85, 10, 0), App.Vector(105, 10, 0)),  # 11
    Part.LineSegment(App.Vector(105, 10, 0), App.Vector(105, -10, 0)),  # 12
    Part.LineSegment(App.Vector(105, -10, 0), App.Vector(85, -10, 0)),  # 13
    Part.Circle(App.Vector(95, 0, 0), App.Vector(0, 0, 1), 2.6),  # 14
], False)
sketch19.addConstraint([
    Sketcher.Constraint("Coincident", 0, 2, 1, 1),
    Sketcher.Constraint("Coincident", 1, 2, 2, 1),
    Sketcher.Constraint("Coincident", 2, 2, 3, 1),
    Sketcher.Constraint("Coincident", 3, 2, 0, 1),
    Sketcher.Constraint("Coincident", 5, 2, 6, 1),
    Sketcher.Constraint("Coincident", 6, 2, 7, 1),
    Sketcher.Constraint("Coincident", 7, 2, 8, 1),
    Sketcher.Constraint("Coincident", 8, 2, 5, 1),
    Sketcher.Constraint("Coincident", 10, 2, 11, 1),
    Sketcher.Constraint("Coincident", 11, 2, 12, 1),
    Sketcher.Constraint("Coincident", 12, 2, 13, 1),
    Sketcher.Constraint("Coincident", 13, 2, 10, 1),
    Sketcher.Constraint("Vertical", 0),
    Sketcher.Constraint("Horizontal", 1),
    Sketcher.Constraint("Vertical", 2),
    Sketcher.Constraint("Horizontal", 3),
    Sketcher.Constraint("Horizontal", 5),
    Sketcher.Constraint("Vertical", 6),
    Sketcher.Constraint("Horizontal", 7),
    Sketcher.Constraint("Vertical", 8),
    Sketcher.Constraint("Vertical", 10),
    Sketcher.Constraint("Horizontal", 11),
    Sketcher.Constraint("Vertical", 12),
    Sketcher.Constraint("Horizontal", 13),
    Sketcher.Constraint("Equal", 4, 9),
    Sketcher.Constraint("Equal", 9, 14),
    Sketcher.Constraint("PointOnObject", 9, 3, -2),
    Sketcher.Constraint("PointOnObject", 14, 3, -1),
    Sketcher.Constraint("PointOnObject", 0, 2, -1),
    Sketcher.Constraint("Horizontal", 4, 3, 12, 2),
    Sketcher.Constraint("Equal", 3, 5),
    Sketcher.Constraint("Equal", 7, 11),
    Sketcher.Constraint("Equal", 13, 0),
    Sketcher.Constraint("Equal", 2, 6),
    Sketcher.Constraint("Equal", 8, 10),
    Sketcher.Constraint("Diameter", 4, Q("5.2 mm")),
    Sketcher.Constraint("DistanceX", 1, 1, 1, 2, Q("20 mm")),
    Sketcher.Constraint("DistanceX", 4, 3, -1, 1, Q("95 mm")),
    Sketcher.Constraint("DistanceY", 4, 3, -1, 1, Q("10 mm")),
    Sketcher.Constraint("DistanceY", -1, 1, 9, 3, Q("95 mm")),
    Sketcher.Constraint("DistanceX", -1, 1, 14, 3, Q("95 mm")),
    Sketcher.Constraint("DistanceX", 0, 2, -1, 1, Q("105 mm")),
    Sketcher.Constraint("DistanceX", 5, 2, -1, 1, Q("10 mm")),
    Sketcher.Constraint("DistanceY", -1, 1, 5, 2, Q("85 mm")),
    Sketcher.Constraint("DistanceX", -1, 1, 10, 2, Q("85 mm")),
])
pad9 = body.newObject("PartDesign::Pad", "Pad008")
pad9.Profile = sketch19
pad9.Length = 3

doc.recompute()
